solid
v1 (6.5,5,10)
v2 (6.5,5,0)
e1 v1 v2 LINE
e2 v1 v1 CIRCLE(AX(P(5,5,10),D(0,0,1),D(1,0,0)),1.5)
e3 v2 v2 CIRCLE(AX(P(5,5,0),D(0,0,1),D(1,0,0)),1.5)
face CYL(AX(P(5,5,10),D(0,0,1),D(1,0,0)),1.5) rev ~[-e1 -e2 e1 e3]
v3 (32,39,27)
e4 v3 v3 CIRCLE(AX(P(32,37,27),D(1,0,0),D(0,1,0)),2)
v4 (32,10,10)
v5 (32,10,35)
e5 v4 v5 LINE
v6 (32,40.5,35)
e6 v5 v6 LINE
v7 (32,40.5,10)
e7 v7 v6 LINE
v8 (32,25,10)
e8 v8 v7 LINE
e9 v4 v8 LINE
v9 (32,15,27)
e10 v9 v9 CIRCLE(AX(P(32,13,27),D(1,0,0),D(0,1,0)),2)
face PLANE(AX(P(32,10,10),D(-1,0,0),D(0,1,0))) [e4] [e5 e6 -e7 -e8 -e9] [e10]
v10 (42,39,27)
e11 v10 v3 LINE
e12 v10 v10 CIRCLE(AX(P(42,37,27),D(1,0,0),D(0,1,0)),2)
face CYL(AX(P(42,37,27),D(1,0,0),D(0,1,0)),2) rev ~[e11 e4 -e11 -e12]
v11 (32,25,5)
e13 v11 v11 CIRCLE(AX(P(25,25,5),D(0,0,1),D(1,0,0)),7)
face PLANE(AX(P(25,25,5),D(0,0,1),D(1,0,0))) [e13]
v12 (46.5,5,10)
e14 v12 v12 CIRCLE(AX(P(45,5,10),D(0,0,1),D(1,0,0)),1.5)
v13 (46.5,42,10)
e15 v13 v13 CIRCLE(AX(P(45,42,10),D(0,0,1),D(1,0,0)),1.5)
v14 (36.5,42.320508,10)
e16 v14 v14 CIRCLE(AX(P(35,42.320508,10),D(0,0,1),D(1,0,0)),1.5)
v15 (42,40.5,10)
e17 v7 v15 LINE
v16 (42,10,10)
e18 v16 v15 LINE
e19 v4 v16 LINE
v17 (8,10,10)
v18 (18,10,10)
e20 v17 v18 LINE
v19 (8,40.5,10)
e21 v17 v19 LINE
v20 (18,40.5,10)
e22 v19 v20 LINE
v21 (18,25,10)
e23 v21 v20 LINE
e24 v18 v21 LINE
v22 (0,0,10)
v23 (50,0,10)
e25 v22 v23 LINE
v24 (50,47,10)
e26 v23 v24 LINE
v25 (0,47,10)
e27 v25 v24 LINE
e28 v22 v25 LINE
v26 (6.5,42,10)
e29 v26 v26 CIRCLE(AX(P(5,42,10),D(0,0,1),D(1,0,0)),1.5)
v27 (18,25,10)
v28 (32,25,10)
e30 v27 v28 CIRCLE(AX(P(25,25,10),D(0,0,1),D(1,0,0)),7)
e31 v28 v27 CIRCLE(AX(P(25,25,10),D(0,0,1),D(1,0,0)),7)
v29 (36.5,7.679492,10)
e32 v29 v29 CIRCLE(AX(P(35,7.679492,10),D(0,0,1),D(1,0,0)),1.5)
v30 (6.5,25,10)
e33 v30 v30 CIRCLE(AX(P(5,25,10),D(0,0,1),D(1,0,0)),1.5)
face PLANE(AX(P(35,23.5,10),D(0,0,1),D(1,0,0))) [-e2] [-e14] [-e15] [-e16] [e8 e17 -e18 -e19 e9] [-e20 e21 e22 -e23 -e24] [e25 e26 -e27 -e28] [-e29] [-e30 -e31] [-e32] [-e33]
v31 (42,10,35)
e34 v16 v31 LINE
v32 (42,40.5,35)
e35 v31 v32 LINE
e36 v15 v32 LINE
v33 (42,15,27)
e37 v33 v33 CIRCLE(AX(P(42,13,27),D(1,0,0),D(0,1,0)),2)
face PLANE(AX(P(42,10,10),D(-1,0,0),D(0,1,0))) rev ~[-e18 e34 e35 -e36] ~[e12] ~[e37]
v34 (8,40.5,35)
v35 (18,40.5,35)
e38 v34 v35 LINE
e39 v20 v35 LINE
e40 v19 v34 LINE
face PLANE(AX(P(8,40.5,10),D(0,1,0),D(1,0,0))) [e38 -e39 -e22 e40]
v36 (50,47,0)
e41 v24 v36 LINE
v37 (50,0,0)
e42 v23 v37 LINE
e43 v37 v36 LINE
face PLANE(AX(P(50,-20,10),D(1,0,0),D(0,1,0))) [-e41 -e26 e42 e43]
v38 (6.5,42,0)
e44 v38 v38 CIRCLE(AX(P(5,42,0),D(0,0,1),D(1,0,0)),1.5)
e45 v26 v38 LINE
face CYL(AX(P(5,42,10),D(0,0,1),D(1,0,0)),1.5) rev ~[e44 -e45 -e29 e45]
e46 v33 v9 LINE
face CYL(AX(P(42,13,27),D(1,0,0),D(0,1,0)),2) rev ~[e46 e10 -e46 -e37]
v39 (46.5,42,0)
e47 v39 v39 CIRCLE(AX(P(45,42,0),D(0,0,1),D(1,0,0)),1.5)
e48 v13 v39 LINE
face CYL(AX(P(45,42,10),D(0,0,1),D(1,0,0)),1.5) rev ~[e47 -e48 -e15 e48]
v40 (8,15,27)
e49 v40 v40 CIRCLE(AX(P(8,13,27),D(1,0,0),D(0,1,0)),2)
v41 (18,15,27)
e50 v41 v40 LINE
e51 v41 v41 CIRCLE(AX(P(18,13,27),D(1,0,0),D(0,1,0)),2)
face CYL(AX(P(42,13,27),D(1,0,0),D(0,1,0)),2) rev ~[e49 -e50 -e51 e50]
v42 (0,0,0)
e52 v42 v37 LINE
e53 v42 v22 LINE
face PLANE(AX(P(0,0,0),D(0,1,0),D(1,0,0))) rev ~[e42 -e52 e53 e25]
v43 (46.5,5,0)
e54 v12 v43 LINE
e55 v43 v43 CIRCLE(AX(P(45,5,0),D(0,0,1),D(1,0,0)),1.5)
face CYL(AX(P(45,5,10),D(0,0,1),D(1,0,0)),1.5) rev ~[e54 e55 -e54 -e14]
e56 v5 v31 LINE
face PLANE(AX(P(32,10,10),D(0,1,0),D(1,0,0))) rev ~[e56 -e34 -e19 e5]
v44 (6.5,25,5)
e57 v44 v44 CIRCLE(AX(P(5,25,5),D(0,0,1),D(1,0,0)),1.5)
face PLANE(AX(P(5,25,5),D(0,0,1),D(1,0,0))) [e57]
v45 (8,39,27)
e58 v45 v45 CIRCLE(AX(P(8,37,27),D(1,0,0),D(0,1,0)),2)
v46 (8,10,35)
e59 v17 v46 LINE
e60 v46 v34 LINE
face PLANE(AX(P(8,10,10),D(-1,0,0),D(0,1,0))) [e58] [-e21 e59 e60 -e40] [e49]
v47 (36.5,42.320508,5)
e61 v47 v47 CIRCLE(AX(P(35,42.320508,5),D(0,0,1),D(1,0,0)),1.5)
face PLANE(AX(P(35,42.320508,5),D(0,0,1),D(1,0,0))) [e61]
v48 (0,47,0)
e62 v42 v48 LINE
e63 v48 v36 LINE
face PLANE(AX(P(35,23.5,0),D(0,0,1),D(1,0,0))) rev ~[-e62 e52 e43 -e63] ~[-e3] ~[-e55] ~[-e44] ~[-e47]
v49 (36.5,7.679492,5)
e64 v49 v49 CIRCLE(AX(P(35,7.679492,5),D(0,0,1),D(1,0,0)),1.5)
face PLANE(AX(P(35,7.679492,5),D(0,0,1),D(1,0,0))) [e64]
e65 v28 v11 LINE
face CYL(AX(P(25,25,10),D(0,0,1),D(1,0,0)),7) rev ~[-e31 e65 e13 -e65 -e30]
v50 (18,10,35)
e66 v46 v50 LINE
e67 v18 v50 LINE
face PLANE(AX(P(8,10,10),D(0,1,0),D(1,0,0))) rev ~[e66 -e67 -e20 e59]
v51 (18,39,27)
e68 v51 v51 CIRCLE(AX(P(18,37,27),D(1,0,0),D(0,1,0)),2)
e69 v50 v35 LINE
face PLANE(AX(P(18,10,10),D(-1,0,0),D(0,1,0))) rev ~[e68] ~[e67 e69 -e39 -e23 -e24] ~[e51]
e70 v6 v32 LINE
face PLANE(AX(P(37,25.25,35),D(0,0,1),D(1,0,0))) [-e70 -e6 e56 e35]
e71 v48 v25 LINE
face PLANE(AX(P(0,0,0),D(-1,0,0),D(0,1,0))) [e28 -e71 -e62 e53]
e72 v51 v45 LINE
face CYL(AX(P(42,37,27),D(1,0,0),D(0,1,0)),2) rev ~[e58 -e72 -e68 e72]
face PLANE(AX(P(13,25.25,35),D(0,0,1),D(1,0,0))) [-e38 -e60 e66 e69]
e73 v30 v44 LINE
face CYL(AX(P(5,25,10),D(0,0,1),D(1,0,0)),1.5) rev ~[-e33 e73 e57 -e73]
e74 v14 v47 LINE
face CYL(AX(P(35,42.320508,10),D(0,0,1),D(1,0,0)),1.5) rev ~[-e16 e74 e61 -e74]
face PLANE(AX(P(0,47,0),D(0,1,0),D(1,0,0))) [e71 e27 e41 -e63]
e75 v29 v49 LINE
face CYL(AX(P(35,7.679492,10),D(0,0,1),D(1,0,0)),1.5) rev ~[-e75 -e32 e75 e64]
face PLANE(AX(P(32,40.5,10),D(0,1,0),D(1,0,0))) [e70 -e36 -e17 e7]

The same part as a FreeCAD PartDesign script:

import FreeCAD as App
import Part
import Sketcher

V = App.Vector

doc = App.newDocument("Part")
body = doc.addObject("PartDesign::Body", "Body")

# Sketch on XY plane
sketch1 = body.newObject("Sketcher::SketchObject", "Sketch")
sketch1.AttachmentSupport = (doc.getObject("XY_Plane"), [""])
sketch1.MapMode = "FlatFace"
sketch1.addGeometry(Part.LineSegment(V(0, 47, 0), V(0, 0, 0)), False)
sketch1.addGeometry(Part.LineSegment(V(0, 0, 0), V(70, 0, 0)), False)
sketch1.addGeometry(Part.LineSegment(V(70, 0, 0), V(70, 47, 0)), False)
sketch1.addGeometry(Part.LineSegment(V(70, 47, 0), V(0, 47, 0)), False)
sketch1.addConstraint(Sketcher.Constraint("Coincident", 0, 2, 1, 1))
sketch1.addConstraint(Sketcher.Constraint("Coincident", 1, 2, 2, 1))
sketch1.addConstraint(Sketcher.Constraint("Coincident", 2, 2, 3, 1))
sketch1.addConstraint(Sketcher.Constraint("Coincident", 3, 2, 0, 1))
sketch1.addConstraint(Sketcher.Constraint("Vertical", 0))
sketch1.addConstraint(Sketcher.Constraint("Horizontal", 1))
sketch1.addConstraint(Sketcher.Constraint("Vertical", 2))
sketch1.addConstraint(Sketcher.Constraint("Horizontal", 3))
sketch1.addConstraint(Sketcher.Constraint("Coincident", 0, 2, -1, 1))
sketch1.addConstraint(Sketcher.Constraint("DistanceX", 1, 1, 1, 2, 70.0))
sketch1.addConstraint(Sketcher.Constraint("DistanceY", 0, 2, 0, 1, 47.0))
pad1 = body.newObject("PartDesign::Pad", "Pad")
pad1.Profile = sketch1
pad1.Length = 10

# Sketch on XY plane
sketch2 = body.newObject("Sketcher::SketchObject", "Sketch001")
sketch2.AttachmentSupport = (doc.getObject("XY_Plane"), [""])
sketch2.MapMode = "FlatFace"
sketch2.AttachmentOffset = App.Placement(V(0, 0, 10), App.Rotation())
sketch2.addGeometry(Part.Circle(V(25, 25, 0), V(0, 0, 1), 7), False)
sketch2.addGeometry(Part.Circle(V(5, 25, 0), V(0, 0, 1), 1.5), False)
sketch2.addGeometry(Part.Circle(V(35, 42.3, 0), V(0, 0, 1), 1.5), False)
sketch2.addGeometry(Part.Circle(V(35, 7.7, 0), V(0, 0, 1), 1.5), False)
sketch2.addConstraint(Sketcher.Constraint("Equal", 1, 2))
sketch2.addConstraint(Sketcher.Constraint("Equal", 2, 3))
sketch2.addConstraint(Sketcher.Constraint("Horizontal", 0, 3, 1, 3))
sketch2.addConstraint(Sketcher.Constraint("Vertical", 2, 3, 3, 3))
sketch2.addConstraint(Sketcher.Constraint("Diameter", 0, 14.0))
sketch2.addConstraint(Sketcher.Constraint("Diameter", 1, 3.0))
sketch2.addConstraint(Sketcher.Constraint("DistanceX", -1, 1, 0, 3, 25.0))
sketch2.addConstraint(Sketcher.Constraint("DistanceY", -1, 1, 0, 3, 25.0))
sketch2.addConstraint(Sketcher.Constraint("DistanceX", -1, 1, 1, 3, 5.0))
sketch2.addConstraint(Sketcher.Constraint("DistanceX", -1, 1, 2, 3, 35.0))
sketch2.addConstraint(Sketcher.Constraint("DistanceY", -1, 1, 3, 3, 7.679492))
sketch2.addConstraint(Sketcher.Constraint("DistanceY", -1, 1, 2, 3, 42.320508))
pocket1 = body.newObject("PartDesign::Pocket", "Pocket")
pocket1.Profile = sketch2
pocket1.Length = 5

# Sketch on XY plane
sketch3 = body.newObject("Sketcher::SketchObject", "Sketch002")
sketch3.AttachmentSupport = (doc.getObject("XY_Plane"), [""])
sketch3.MapMode = "FlatFace"
sketch3.AttachmentOffset = App.Placement(V(0, 0, 10), App.Rotation())
sketch3.addGeometry(Part.Circle(V(5, 42, 0), V(0, 0, 1), 1.5), False)
sketch3.addGeometry(Part.Circle(V(5, 5, 0), V(0, 0, 1), 1.5), False)
sketch3.addGeometry(Part.Circle(V(45, 5, 0), V(0, 0, 1), 1.5), False)
sketch3.addGeometry(Part.Circle(V(45, 42, 0), V(0, 0, 1), 1.5), False)
sketch3.addGeometry(Part.LineSegment(V(50, 50, 0), V(50, -20, 0)), False)
sketch3.addGeometry(Part.LineSegment(V(50, -20, 0), V(70, -20, 0)), False)
sketch3.addGeometry(Part.LineSegment(V(70, -20, 0), V(70, 50, 0)), False)
sketch3.addGeometry(Part.LineSegment(V(70, 50, 0), V(50, 50, 0)), False)
sketch3.addConstraint(Sketcher.Constraint("Coincident", 4, 2, 5, 1))
sketch3.addConstraint(Sketcher.Constraint("Coincident", 5, 2, 6, 1))
sketch3.addConstraint(Sketcher.Constraint("Coincident", 6, 2, 7, 1))
sketch3.addConstraint(Sketcher.Constraint("Coincident", 7, 2, 4, 1))
sketch3.addConstraint(Sketcher.Constraint("Vertical", 4))
sketch3.addConstraint(Sketcher.Constraint("Horizontal", 5))
sketch3.addConstraint(Sketcher.Constraint("Vertical", 6))
sketch3.addConstraint(Sketcher.Constraint("Horizontal", 7))
sketch3.addConstraint(Sketcher.Constraint("Equal", 0, 1))
sketch3.addConstraint(Sketcher.Constraint("Equal", 1, 2))
sketch3.addConstraint(Sketcher.Constraint("Equal", 2, 3))
sketch3.addConstraint(Sketcher.Constraint("Horizontal", 1, 3, 2, 3))
sketch3.addConstraint(Sketcher.Constraint("Horizontal", 0, 3, 3, 3))
sketch3.addConstraint(Sketcher.Constraint("Vertical", 0, 3, 1, 3))
sketch3.addConstraint(Sketcher.Constraint("Vertical", 2, 3, 3, 3))
sketch3.addConstraint(Sketcher.Constraint("Diameter", 0, 3.0))
sketch3.addConstraint(Sketcher.Constraint("DistanceX", 5, 1, 5, 2, 20.0))
sketch3.addConstraint(Sketcher.Constraint("DistanceY", 4, 2, 4, 1, 70.0))
sketch3.addConstraint(Sketcher.Constraint("DistanceX", -1, 1, 0, 3, 5.0))
sketch3.addConstraint(Sketcher.Constraint("DistanceY", -1, 1, 0, 3, 42.0))
sketch3.addConstraint(Sketcher.Constraint("DistanceY", -1, 1, 1, 3, 5.0))
sketch3.addConstraint(Sketcher.Constraint("DistanceX", -1, 1, 2, 3, 45.0))
sketch3.addConstraint(Sketcher.Constraint("DistanceX", -1, 1, 4, 2, 50.0))
sketch3.addConstraint(Sketcher.Constraint("DistanceY", 4, 2, -1, 1, 20.0))
pocket2 = body.newObject("PartDesign::Pocket", "Pocket001")
pocket2.Profile = sketch3
pocket2.Type = "ThroughAll"

# Sketch on XY plane
sketch4 = body.newObject("Sketcher::SketchObject", "Sketch003")
sketch4.AttachmentSupport = (doc.getObject("XY_Plane"), [""])
sketch4.MapMode = "FlatFace"
sketch4.AttachmentOffset = App.Placement(V(0, 0, 10), App.Rotation())
sketch4.addGeometry(Part.LineSegment(V(8, 40, 0), V(8, 10, 0)), False)
sketch4.addGeometry(Part.LineSegment(V(8, 10, 0), V(18, 10, 0)), False)
sketch4.addGeometry(Part.LineSegment(V(18, 10, 0), V(18, 40, 0)), False)
sketch4.addGeometry(Part.LineSegment(V(18, 40, 0), V(8, 40, 0)), False)
sketch4.addGeometry(Part.LineSegment(V(32, 40, 0), V(32, 10, 0)), False)
sketch4.addGeometry(Part.LineSegment(V(32, 10, 0), V(42, 10, 0)), False)
sketch4.addGeometry(Part.LineSegment(V(42, 10, 0), V(42, 40, 0)), False)
sketch4.addGeometry(Part.LineSegment(V(42, 40, 0), V(32, 40, 0)), False)
sketch4.addConstraint(Sketcher.Constraint("Coincident", 0, 2, 1, 1))
sketch4.addConstraint(Sketcher.Constraint("Coincident", 1, 2, 2, 1))
sketch4.addConstraint(Sketcher.Constraint("Coincident", 2, 2, 3, 1))
sketch4.addConstraint(Sketcher.Constraint("Coincident", 3, 2, 0, 1))
sketch4.addConstraint(Sketcher.Constraint("Coincident", 4, 2, 5, 1))
sketch4.addConstraint(Sketcher.Constraint("Coincident", 5, 2, 6, 1))
sketch4.addConstraint(Sketcher.Constraint("Coincident", 6, 2, 7, 1))
sketch4.addConstraint(Sketcher.Constraint("Coincident", 7, 2, 4, 1))
sketch4.addConstraint(Sketcher.Constraint("Vertical", 0))
sketch4.addConstraint(Sketcher.Constraint("Horizontal", 1))
sketch4.addConstraint(Sketcher.Constraint("Vertical", 2))
sketch4.addConstraint(Sketcher.Constraint("Horizontal", 3))
sketch4.addConstraint(Sketcher.Constraint("Vertical", 4))
sketch4.addConstraint(Sketcher.Constraint("Horizontal", 5))
sketch4.addConstraint(Sketcher.Constraint("Vertical", 6))
sketch4.addConstraint(Sketcher.Constraint("Horizontal", 7))
sketch4.addConstraint(Sketcher.Constraint("Horizontal", 1, 2, 4, 2))
sketch4.addConstraint(Sketcher.Constraint("Horizontal", 3, 2, 6, 2))
sketch4.addConstraint(Sketcher.Constraint("Equal", 3, 5))
sketch4.addConstraint(Sketcher.Constraint("DistanceX", 1, 1, 1, 2, 10.0))
sketch4.addConstraint(Sketcher.Constraint("DistanceY", 0, 2, 0, 1, 30.5))
sketch4.addConstraint(Sketcher.Constraint("DistanceX", -1, 1, 0, 2, 8.0))
sketch4.addConstraint(Sketcher.Constraint("DistanceY", -1, 1, 0, 2, 10.0))
sketch4.addConstraint(Sketcher.Constraint("DistanceX", -1, 1, 4, 2, 32.0))
pad2 = body.newObject("PartDesign::Pad", "Pad001")
pad2.Profile = sketch4
pad2.Length = 25

# Sketch on YZ plane
sketch5 = body.newObject("Sketcher::SketchObject", "Sketch004")
sketch5.AttachmentSupport = (doc.getObject("YZ_Plane"), [""])
sketch5.MapMode = "FlatFace"
sketch5.AttachmentOffset = App.Placement(V(0, 0, 42), App.Rotation())
sketch5.addGeometry(Part.Circle(V(13, 27, 0), V(0, 0, 1), 2), False)
sketch5.addGeometry(Part.Circle(V(37, 27, 0), V(0, 0, 1), 2), False)
sketch5.addConstraint(Sketcher.Constraint("Equal", 0, 1))
sketch5.addConstraint(Sketcher.Constraint("Horizontal", 0, 3, 1, 3))
sketch5.addConstraint(Sketcher.Constraint("Diameter", 0, 4.0))
sketch5.addConstraint(Sketcher.Constraint("DistanceX", -1, 1, 0, 3, 13.0))
sketch5.addConstraint(Sketcher.Constraint("DistanceY", -1, 1, 0, 3, 27.0))
sketch5.addConstraint(Sketcher.Constraint("DistanceX", -1, 1, 1, 3, 37.0))
pocket3 = body.newObject("PartDesign::Pocket", "Pocket002")
pocket3.Profile = sketch5
pocket3.Type = "ThroughAll"

doc.recompute()
